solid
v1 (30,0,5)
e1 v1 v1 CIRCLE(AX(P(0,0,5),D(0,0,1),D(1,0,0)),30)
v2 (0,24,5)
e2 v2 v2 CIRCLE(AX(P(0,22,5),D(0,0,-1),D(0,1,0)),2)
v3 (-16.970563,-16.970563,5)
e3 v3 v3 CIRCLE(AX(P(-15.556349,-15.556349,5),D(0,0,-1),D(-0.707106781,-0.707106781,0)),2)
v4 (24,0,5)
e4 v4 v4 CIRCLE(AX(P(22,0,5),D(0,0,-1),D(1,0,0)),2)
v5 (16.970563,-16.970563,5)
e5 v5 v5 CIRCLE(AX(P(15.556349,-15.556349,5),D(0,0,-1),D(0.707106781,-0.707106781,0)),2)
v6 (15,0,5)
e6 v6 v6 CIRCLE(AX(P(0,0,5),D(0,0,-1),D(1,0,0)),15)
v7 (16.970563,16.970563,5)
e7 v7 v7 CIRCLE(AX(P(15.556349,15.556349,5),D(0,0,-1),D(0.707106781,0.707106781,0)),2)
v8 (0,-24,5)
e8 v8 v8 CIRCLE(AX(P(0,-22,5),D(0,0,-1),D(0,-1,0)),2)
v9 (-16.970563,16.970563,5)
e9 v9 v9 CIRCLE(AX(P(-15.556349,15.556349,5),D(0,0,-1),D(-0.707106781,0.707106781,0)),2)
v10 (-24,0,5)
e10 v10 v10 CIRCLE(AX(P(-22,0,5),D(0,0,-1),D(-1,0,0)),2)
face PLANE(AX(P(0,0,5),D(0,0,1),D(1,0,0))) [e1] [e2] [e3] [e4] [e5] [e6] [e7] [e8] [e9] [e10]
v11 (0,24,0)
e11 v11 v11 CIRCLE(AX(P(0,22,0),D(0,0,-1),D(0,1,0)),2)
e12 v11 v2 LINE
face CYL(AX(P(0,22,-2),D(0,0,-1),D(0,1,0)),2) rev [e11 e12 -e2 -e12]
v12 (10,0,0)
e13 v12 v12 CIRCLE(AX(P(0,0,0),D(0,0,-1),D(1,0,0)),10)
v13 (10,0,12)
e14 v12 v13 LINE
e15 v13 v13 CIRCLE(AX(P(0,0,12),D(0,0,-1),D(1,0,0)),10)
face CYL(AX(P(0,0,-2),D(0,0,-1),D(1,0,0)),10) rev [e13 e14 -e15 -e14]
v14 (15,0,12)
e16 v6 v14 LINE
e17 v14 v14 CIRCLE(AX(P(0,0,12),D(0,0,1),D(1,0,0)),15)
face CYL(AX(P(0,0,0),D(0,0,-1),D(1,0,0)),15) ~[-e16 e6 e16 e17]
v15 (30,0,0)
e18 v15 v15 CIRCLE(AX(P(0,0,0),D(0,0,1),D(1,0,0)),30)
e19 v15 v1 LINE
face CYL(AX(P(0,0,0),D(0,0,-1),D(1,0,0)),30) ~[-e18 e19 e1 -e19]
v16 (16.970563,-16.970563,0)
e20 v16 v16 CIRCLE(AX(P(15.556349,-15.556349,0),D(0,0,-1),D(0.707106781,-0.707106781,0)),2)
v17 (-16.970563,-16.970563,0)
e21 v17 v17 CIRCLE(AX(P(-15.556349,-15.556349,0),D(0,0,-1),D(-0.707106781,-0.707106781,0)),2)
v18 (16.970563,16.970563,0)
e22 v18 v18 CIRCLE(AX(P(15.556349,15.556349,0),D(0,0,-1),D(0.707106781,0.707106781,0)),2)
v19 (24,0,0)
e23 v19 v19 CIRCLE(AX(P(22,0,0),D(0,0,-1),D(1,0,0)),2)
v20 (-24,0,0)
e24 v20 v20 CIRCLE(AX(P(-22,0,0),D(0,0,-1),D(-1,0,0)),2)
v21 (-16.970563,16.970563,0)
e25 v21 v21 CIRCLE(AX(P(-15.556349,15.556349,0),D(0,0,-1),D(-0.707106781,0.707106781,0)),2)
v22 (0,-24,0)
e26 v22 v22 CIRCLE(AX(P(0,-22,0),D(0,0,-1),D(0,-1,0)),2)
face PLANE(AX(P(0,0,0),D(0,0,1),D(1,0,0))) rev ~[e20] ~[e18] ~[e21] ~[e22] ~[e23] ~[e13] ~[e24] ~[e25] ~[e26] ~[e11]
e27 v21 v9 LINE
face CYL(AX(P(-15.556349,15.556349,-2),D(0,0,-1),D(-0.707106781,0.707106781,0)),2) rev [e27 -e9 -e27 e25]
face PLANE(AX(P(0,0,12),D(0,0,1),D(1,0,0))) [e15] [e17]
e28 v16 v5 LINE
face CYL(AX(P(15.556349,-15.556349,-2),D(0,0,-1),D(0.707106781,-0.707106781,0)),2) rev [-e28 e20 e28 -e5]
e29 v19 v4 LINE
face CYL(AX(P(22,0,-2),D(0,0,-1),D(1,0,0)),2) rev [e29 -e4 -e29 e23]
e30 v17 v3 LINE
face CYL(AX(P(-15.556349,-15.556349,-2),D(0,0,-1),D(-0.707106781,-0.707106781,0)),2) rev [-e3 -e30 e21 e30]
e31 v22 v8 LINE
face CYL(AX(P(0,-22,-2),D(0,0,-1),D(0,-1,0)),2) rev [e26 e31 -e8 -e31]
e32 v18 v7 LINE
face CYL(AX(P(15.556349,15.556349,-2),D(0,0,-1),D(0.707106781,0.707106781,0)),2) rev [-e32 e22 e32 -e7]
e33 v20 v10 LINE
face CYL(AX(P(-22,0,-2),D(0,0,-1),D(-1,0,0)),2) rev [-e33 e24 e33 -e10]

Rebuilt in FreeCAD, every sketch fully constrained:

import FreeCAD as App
import Part
import Sketcher

V = App.Vector

doc = App.newDocument("Part")
body = doc.addObject("PartDesign::Body", "Body")

# Sketch on XY plane
sketch1 = body.newObject("Sketcher::SketchObject", "Sketch")
sketch1.AttachmentSupport = (doc.getObject("XY_Plane"), [""])
sketch1.MapMode = "FlatFace"
sketch1.AttachmentOffset = App.Placement(V(0, 0, -2), App.Rotation())
sketch1.addGeometry(Part.Circle(V(22, 0, 0), V(0, 0, 1), 2), False)
sketch1.addConstraint([
    Sketcher.Constraint("PointOnObject", 0, 3, -1),
    Sketcher.Constraint("Diameter", 0, 4.0),
    Sketcher.Constraint("DistanceX", -1, 1, 0, 3, 22.0),
])
pad1 = body.newObject("PartDesign::Pad", "Pad")
pad1.Profile = sketch1
pad1.Length = 10
body2 = doc.addObject("PartDesign::Body", "Body001")
body2.AllowCompound = True
doc.recompute()

body2.BaseFeature = body
doc.recompute()

body3 = doc.addObject("PartDesign::Body", "Body002")
body3.BaseFeature = body
body3.Placement = App.Placement(V(0, 0, 0), App.Rotation(V(0, 0, 1), 45))
boolean = body2.newObject("PartDesign::Boolean", "Boolean")
boolean.Type = "Fuse"
boolean.addObjects([body3])
doc.recompute()

body4 = doc.addObject("PartDesign::Body", "Body003")
body4.BaseFeature = body
body4.Placement = App.Placement(V(0, 0, 0), App.Rotation(V(0, 0, 1), 90))
boolean2 = body2.newObject("PartDesign::Boolean", "Boolean001")
boolean2.Type = "Fuse"
boolean2.addObjects([body4])
doc.recompute()

body5 = doc.addObject("PartDesign::Body", "Body004")
body5.BaseFeature = body
body5.Placement = App.Placement(V(0, 0, 0), App.Rotation(V(0, 0, 1), 135))
boolean3 = body2.newObject("PartDesign::Boolean", "Boolean002")
boolean3.Type = "Fuse"
boolean3.addObjects([body5])
doc.recompute()

body6 = doc.addObject("PartDesign::Body", "Body005")
body6.BaseFeature = body
body6.Placement = App.Placement(V(0, 0, 0), App.Rotation(V(0, 0, 1), 180))
boolean4 = body2.newObject("PartDesign::Boolean", "Boolean003")
boolean4.Type = "Fuse"
boolean4.addObjects([body6])
doc.recompute()

body7 = doc.addObject("PartDesign::Body", "Body006")
body7.BaseFeature = body
body7.Placement = App.Placement(V(0, 0, 0), App.Rotation(V(0, 0, 1), 225))
boolean5 = body2.newObject("PartDesign::Boolean", "Boolean004")
boolean5.Type = "Fuse"
boolean5.addObjects([body7])
doc.recompute()

body8 = doc.addObject("PartDesign::Body", "Body007")
body8.BaseFeature = body
body8.Placement = App.Placement(V(0, 0, 0), App.Rotation(V(0, 0, 1), 270))
boolean6 = body2.newObject("PartDesign::Boolean", "Boolean005")
boolean6.Type = "Fuse"
boolean6.addObjects([body8])
doc.recompute()

body.Placement = App.Placement(V(0, 0, 0), App.Rotation(V(0, 0, 1), 315))
boolean7 = body2.newObject("PartDesign::Boolean", "Boolean006")
boolean7.Type = "Fuse"
boolean7.addObjects([body])
body9 = doc.addObject("PartDesign::Body", "Body008")

# Sketch on XY plane
sketch2 = body9.newObject("Sketcher::SketchObject", "Sketch001")
sketch2.AttachmentSupport = (doc.getObject("XY_Plane008"), [""])
sketch2.MapMode = "FlatFace"
sketch2.AttachmentOffset = App.Placement(V(0, 0, -2), App.Rotation())
sketch2.addGeometry(Part.Circle(V(0, 0, 0), V(0, 0, 1), 10), False)
sketch2.addConstraint([
    Sketcher.Constraint("Coincident", 0, 3, -1, 1),
    Sketcher.Constraint("Diameter", 0, 20.0),
])
pad2 = body9.newObject("PartDesign::Pad", "Pad001")
pad2.Profile = sketch2
pad2.Length = 30
body10 = doc.addObject("PartDesign::Body", "Body009")

# Sketch on XY plane
sketch3 = body10.newObject("Sketcher::SketchObject", "Sketch002")
sketch3.AttachmentSupport = (doc.getObject("XY_Plane009"), [""])
sketch3.MapMode = "FlatFace"
sketch3.addGeometry(Part.Circle(V(0, 0, 0), V(0, 0, 1), 30), False)
sketch3.addConstraint([
    Sketcher.Constraint("Coincident", 0, 3, -1, 1),
    Sketcher.Constraint("Diameter", 0, 60.0),
])
pad3 = body10.newObject("PartDesign::Pad", "Pad002")
pad3.Profile = sketch3
pad3.Length = 5
body11 = doc.addObject("PartDesign::Body", "Body010")

# Sketch on XY plane
sketch4 = body11.newObject("Sketcher::SketchObject", "Sketch003")
sketch4.AttachmentSupport = (doc.getObject("XY_Plane010"), [""])
sketch4.MapMode = "FlatFace"
sketch4.addGeometry(Part.Circle(V(0, 0, 0), V(0, 0, 1), 15), False)
sketch4.addConstraint([
    Sketcher.Constraint("Coincident", 0, 3, -1, 1),
    Sketcher.Constraint("Diameter", 0, 30.0),
])
pad4 = body11.newObject("PartDesign::Pad", "Pad003")
pad4.Profile = sketch4
pad4.Length = 12
doc.recompute()

boolean8 = body11.newObject("PartDesign::Boolean", "Boolean007")
boolean8.Type = "Fuse"
boolean8.addObjects([body10])
doc.recompute()

boolean9 = body11.newObject("PartDesign::Boolean", "Boolean008")
boolean9.Type = "Cut"
boolean9.addObjects([body9])
doc.recompute()

boolean10 = body11.newObject("PartDesign::Boolean", "Boolean009")
boolean10.Type = "Cut"
boolean10.addObjects([body2])

doc.recompute()
